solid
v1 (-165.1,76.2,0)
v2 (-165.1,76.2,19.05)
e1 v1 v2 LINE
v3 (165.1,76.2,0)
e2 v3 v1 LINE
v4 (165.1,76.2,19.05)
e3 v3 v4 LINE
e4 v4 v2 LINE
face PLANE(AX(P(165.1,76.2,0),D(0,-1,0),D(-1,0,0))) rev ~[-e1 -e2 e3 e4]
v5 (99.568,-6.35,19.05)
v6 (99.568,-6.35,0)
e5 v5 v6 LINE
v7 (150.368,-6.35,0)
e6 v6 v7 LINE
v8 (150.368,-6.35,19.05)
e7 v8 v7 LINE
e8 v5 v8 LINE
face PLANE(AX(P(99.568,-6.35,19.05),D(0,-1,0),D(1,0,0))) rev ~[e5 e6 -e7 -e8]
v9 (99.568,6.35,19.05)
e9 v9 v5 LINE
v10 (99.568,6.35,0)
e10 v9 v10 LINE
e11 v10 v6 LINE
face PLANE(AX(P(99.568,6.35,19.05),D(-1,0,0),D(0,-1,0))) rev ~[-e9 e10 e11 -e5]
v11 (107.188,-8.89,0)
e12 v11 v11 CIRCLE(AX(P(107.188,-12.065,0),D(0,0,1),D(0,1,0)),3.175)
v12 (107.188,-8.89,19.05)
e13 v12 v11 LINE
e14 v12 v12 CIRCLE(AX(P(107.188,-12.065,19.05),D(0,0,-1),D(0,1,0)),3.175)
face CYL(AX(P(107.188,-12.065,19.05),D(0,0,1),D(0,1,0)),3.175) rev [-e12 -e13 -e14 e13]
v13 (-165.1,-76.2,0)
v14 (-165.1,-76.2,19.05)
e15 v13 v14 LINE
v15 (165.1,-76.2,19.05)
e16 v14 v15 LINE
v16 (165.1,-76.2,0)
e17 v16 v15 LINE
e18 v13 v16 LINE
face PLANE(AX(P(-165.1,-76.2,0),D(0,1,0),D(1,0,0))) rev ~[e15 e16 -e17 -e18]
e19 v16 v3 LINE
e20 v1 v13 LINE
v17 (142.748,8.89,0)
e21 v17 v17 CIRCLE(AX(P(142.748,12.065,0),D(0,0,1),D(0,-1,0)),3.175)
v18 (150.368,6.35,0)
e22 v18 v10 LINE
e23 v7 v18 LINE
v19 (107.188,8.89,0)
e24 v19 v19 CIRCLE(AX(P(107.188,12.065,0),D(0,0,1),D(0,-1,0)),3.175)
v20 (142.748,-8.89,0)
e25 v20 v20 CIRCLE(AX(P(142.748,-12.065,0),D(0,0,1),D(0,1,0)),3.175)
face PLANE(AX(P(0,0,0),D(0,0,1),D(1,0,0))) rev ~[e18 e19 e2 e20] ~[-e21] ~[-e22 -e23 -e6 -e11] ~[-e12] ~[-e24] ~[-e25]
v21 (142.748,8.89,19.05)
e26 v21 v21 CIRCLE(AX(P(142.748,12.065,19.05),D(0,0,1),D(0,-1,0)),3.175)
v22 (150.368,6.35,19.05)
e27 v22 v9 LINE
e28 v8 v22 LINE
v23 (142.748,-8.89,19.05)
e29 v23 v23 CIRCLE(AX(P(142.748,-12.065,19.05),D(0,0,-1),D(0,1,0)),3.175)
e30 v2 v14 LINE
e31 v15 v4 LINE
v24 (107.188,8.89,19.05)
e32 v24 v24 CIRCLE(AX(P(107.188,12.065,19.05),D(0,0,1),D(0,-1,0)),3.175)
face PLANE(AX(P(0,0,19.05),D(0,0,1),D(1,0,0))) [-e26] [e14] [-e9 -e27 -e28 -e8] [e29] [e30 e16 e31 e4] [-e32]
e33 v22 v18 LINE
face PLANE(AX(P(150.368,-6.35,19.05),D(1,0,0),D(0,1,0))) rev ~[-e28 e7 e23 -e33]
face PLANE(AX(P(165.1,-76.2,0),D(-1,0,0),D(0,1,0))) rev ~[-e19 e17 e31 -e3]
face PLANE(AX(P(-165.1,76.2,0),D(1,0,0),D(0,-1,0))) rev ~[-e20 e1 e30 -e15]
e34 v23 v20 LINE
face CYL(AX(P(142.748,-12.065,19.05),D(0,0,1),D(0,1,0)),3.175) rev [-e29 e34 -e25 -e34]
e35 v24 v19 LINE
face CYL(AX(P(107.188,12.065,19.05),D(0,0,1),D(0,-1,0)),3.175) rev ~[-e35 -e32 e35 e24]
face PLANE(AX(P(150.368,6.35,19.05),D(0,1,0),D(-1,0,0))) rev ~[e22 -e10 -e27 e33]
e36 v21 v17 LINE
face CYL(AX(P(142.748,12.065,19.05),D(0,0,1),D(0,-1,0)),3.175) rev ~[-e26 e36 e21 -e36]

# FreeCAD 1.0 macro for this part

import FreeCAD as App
import Part
import Sketcher
Q = App.Units.Quantity

doc = App.newDocument("Part")
body = doc.addObject("PartDesign::Body", "Body")

# Sketch on XY plane
sketch1 = body.newObject("Sketcher::SketchObject", "Sketch")
sketch1.AttachmentSupport = (doc.getObject("XY_Plane"), [""])
sketch1.MapMode = "FlatFace"
sketch1.addGeometry([
    Part.LineSegment(App.Vector(-165, 76, 0), App.Vector(-165, -76, 0)),
    Part.LineSegment(App.Vector(-165, -76, 0), App.Vector(165, -76, 0)),
    Part.LineSegment(App.Vector(165, -76, 0), App.Vector(165, 76, 0)),
    Part.LineSegment(App.Vector(165, 76, 0), App.Vector(-165, 76, 0)),
], False)
sketch1.addConstraint([
    Sketcher.Constraint("Coincident", 0, 2, 1, 1),
    Sketcher.Constraint("Coincident", 1, 2, 2, 1),
    Sketcher.Constraint("Coincident", 2, 2, 3, 1),
    Sketcher.Constraint("Coincident", 3, 2, 0, 1),
    Sketcher.Constraint("Vertical", 0),
    Sketcher.Constraint("Horizontal", 1),
    Sketcher.Constraint("Vertical", 2),
    Sketcher.Constraint("Horizontal", 3),
    Sketcher.Constraint("Symmetric", 0, 2, 2, 2, -1, 1),
    Sketcher.Constraint("DistanceX", 0, 2, -1, 1, Q("6.5 in")),
    Sketcher.Constraint("DistanceY", 0, 2, 0, 1, Q("6 in")),
])
pad1 = body.newObject("PartDesign::Pad", "Pad")
pad1.Profile = sketch1
pad1.Length = Q("0.75 in")

# Sketch on XY plane
sketch2 = body.newObject("Sketcher::SketchObject", "Sketch001")
sketch2.AttachmentSupport = (doc.getObject("XY_Plane"), [""])
sketch2.MapMode = "FlatFace"
sketch2.AttachmentOffset = App.Placement(App.Vector(0, 0, 0.75 * 25.4), App.Rotation())
sketch2.addGeometry([
    Part.LineSegment(App.Vector(100, 6, 0), App.Vector(100, -6, 0)),
    Part.LineSegment(App.Vector(100, -6, 0), App.Vector(150, -6, 0)),
    Part.LineSegment(App.Vector(150, -6, 0), App.Vector(150, 6, 0)),
    Part.LineSegment(App.Vector(150, 6, 0), App.Vector(100, 6, 0)),
], False)
sketch2.addConstraint([
    Sketcher.Constraint("Coincident", 0, 2, 1, 1),
    Sketcher.Constraint("Coincident", 1, 2, 2, 1),
    Sketcher.Constraint("Coincident", 2, 2, 3, 1),
    Sketcher.Constraint("Coincident", 3, 2, 0, 1),
    Sketcher.Constraint("Vertical", 0),
    Sketcher.Constraint("Horizontal", 1),
    Sketcher.Constraint("Vertical", 2),
    Sketcher.Constraint("Horizontal", 3),
    Sketcher.Constraint("DistanceX", 1, 1, 1, 2, Q("2 in")),
    Sketcher.Constraint("DistanceX", -1, 1, 1, 2, Q("5.92 in")),
    Sketcher.Constraint("DistanceY", 0, 2, 0, 1, Q("0.5 in")),
    Sketcher.Constraint("DistanceY", 0, 2, -1, 1, Q("0.25 in")),
])
pocket1 = body.newObject("PartDesign::Pocket", "Pocket")
pocket1.Profile = sketch2
pocket1.Length = Q("1 in")

# Sketch on XY plane
sketch3 = body.newObject("Sketcher::SketchObject", "Sketch002")
sketch3.AttachmentSupport = (doc.getObject("XY_Plane"), [""])
sketch3.MapMode = "FlatFace"
sketch3.AttachmentOffset = App.Placement(App.Vector(0, 0, 0.75 * 25.4), App.Rotation())
sketch3.addGeometry([
    Part.Circle(App.Vector(107.2, 12.1, 0), App.Vector(0, 0, 1), 3.2),
    Part.Circle(App.Vector(142.7, 12.1, 0), App.Vector(0, 0, 1), 3.2),
], False)
sketch3.addConstraint([
    Sketcher.Constraint("Equal", 0, 1),
    Sketcher.Constraint("Horizontal", 0, 3, 1, 3),
    Sketcher.Constraint("Diameter", 0, Q("0.25 in")),
    Sketcher.Constraint("DistanceY", -1, 1, 0, 3, Q("0.475 in")),
    Sketcher.Constraint("DistanceX", 0, 3, 1, 3, Q("1.4 in")),
    Sketcher.Constraint("DistanceX", -1, 1, 0, 3, Q("4.22 in")),
])
pocket2 = body.newObject("PartDesign::Pocket", "Pocket001")
pocket2.Profile = sketch3
pocket2.Length = Q("1 in")
doc.recompute()

mirrored = body.newObject("PartDesign::Mirrored", "Mirrored")
mirrored.Originals = [pocket2]
mirrored.MirrorPlane = (doc.getObject("XZ_Plane"), [""])
body.Tip = mirrored

doc.recompute()
